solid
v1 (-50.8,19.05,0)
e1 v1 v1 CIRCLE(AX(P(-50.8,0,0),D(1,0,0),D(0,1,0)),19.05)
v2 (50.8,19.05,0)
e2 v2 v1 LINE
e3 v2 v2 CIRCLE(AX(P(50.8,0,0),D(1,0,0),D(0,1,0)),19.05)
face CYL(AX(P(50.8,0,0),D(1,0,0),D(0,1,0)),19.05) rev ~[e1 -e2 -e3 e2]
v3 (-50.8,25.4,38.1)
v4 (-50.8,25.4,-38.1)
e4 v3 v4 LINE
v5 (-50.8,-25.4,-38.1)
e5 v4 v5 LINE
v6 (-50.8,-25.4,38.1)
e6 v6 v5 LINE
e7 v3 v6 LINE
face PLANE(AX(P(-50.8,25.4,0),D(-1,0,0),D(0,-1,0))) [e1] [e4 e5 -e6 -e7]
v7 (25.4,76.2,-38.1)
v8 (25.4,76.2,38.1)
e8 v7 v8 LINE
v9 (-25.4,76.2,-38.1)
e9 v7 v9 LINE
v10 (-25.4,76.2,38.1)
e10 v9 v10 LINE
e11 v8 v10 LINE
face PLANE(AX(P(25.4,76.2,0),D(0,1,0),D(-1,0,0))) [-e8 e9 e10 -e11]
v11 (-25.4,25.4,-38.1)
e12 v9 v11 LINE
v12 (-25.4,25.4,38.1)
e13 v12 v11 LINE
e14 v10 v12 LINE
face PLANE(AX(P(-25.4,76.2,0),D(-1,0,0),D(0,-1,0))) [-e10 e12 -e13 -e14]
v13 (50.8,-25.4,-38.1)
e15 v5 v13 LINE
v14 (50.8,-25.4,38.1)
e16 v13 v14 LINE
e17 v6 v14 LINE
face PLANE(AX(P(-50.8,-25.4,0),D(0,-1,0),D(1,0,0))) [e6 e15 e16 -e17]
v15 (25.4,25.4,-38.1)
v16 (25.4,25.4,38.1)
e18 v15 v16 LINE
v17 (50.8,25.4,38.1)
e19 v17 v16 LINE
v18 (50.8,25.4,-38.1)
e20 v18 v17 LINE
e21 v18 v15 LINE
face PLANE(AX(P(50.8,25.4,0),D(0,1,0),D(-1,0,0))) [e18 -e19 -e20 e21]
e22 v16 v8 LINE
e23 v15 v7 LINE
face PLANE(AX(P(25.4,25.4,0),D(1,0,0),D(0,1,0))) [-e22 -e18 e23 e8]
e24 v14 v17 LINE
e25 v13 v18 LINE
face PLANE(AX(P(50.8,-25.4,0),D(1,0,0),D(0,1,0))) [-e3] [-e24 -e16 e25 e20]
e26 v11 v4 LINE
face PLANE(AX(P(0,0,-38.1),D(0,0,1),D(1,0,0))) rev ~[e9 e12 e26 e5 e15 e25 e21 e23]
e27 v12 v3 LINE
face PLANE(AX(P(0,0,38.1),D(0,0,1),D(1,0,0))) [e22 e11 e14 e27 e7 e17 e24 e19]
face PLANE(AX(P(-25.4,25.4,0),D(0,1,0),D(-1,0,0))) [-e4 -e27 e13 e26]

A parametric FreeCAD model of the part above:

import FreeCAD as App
import Part
import Sketcher

V = App.Vector
Q = App.Units.Quantity

doc = App.newDocument("Part")
body = doc.addObject("PartDesign::Body", "Body")

sketch1 = body.newObject("Sketcher::SketchObject", "Sketch")
sketch1.AttachmentSupport = (doc.getObject("XY_Plane"), [""])
sketch1.MapMode = "FlatFace"
sketch1.addGeometry(Part.LineSegment(V(-51, -25, 0), V(51, -25, 0)), False)
sketch1.addGeometry(Part.LineSegment(V(51, -25, 0), V(51, 25, 0)), False)
sketch1.addGeometry(Part.LineSegment(V(51, 25, 0), V(25, 25, 0)), False)
sketch1.addGeometry(Part.LineSegment(V(25, 25, 0), V(25, 76, 0)), False)
sketch1.addGeometry(Part.LineSegment(V(25, 76, 0), V(-25, 76, 0)), False)
sketch1.addGeometry(Part.LineSegment(V(-25, 76, 0), V(-25, 25, 0)), False)
sketch1.addGeometry(Part.LineSegment(V(-25, 25, 0), V(-51, 25, 0)), False)
sketch1.addGeometry(Part.LineSegment(V(-51, 25, 0), V(-51, -25, 0)), False)
sketch1.addConstraint(Sketcher.Constraint("Coincident", 0, 2, 1, 1))
sketch1.addConstraint(Sketcher.Constraint("Coincident", 1, 2, 2, 1))
sketch1.addConstraint(Sketcher.Constraint("Coincident", 2, 2, 3, 1))
sketch1.addConstraint(Sketcher.Constraint("Coincident", 3, 2, 4, 1))
sketch1.addConstraint(Sketcher.Constraint("Coincident", 4, 2, 5, 1))
sketch1.addConstraint(Sketcher.Constraint("Coincident", 5, 2, 6, 1))
sketch1.addConstraint(Sketcher.Constraint("Coincident", 6, 2, 7, 1))
sketch1.addConstraint(Sketcher.Constraint("Coincident", 7, 2, 0, 1))
sketch1.addConstraint(Sketcher.Constraint("Horizontal", 0))
sketch1.addConstraint(Sketcher.Constraint("Vertical", 1))
sketch1.addConstraint(Sketcher.Constraint("Horizontal", 2))
sketch1.addConstraint(Sketcher.Constraint("Vertical", 3))
sketch1.addConstraint(Sketcher.Constraint("Horizontal", 4))
sketch1.addConstraint(Sketcher.Constraint("Vertical", 5))
sketch1.addConstraint(Sketcher.Constraint("Horizontal", 6))
sketch1.addConstraint(Sketcher.Constraint("Vertical", 7))
sketch1.addConstraint(Sketcher.Constraint("Symmetric", 0, 2, 6, 2, -1, 1))
sketch1.addConstraint(Sketcher.Constraint("Symmetric", 2, 2, 5, 2, -2))
sketch1.addConstraint(Sketcher.Constraint("Equal", 4, 1))
sketch1.addConstraint(Sketcher.Constraint("Equal", 1, 3))
sketch1.addConstraint(Sketcher.Constraint("DistanceX", 0, 1, 0, 2, Q("4 in")))
sketch1.addConstraint(Sketcher.Constraint("DistanceX", 2, 2, 2, 1, Q("1 in")))
pad1 = body.newObject("PartDesign::Pad", "Pad")
pad1.Profile = sketch1
pad1.Length = Q("3 in")
pad1.Midplane = True

sketch2 = body.newObject("Sketcher::SketchObject", "Sketch001")
sketch2.AttachmentSupport = (doc.getObject("YZ_Plane"), [""])
sketch2.MapMode = "FlatFace"
sketch2.AttachmentOffset = App.Placement(V(0, 0, 2 * 25.4), App.Rotation())
sketch2.addGeometry(Part.Circle(V(0, 0, 0), V(0, 0, 1), 19), False)
sketch2.addConstraint(Sketcher.Constraint("Coincident", 0, 3, -1, 1))
sketch2.addConstraint(Sketcher.Constraint("Diameter", 0, Q("1.5 in")))
pocket1 = body.newObject("PartDesign::Pocket", "Pocket")
pocket1.Profile = sketch2
pocket1.Type = "ThroughAll"

doc.recompute()
